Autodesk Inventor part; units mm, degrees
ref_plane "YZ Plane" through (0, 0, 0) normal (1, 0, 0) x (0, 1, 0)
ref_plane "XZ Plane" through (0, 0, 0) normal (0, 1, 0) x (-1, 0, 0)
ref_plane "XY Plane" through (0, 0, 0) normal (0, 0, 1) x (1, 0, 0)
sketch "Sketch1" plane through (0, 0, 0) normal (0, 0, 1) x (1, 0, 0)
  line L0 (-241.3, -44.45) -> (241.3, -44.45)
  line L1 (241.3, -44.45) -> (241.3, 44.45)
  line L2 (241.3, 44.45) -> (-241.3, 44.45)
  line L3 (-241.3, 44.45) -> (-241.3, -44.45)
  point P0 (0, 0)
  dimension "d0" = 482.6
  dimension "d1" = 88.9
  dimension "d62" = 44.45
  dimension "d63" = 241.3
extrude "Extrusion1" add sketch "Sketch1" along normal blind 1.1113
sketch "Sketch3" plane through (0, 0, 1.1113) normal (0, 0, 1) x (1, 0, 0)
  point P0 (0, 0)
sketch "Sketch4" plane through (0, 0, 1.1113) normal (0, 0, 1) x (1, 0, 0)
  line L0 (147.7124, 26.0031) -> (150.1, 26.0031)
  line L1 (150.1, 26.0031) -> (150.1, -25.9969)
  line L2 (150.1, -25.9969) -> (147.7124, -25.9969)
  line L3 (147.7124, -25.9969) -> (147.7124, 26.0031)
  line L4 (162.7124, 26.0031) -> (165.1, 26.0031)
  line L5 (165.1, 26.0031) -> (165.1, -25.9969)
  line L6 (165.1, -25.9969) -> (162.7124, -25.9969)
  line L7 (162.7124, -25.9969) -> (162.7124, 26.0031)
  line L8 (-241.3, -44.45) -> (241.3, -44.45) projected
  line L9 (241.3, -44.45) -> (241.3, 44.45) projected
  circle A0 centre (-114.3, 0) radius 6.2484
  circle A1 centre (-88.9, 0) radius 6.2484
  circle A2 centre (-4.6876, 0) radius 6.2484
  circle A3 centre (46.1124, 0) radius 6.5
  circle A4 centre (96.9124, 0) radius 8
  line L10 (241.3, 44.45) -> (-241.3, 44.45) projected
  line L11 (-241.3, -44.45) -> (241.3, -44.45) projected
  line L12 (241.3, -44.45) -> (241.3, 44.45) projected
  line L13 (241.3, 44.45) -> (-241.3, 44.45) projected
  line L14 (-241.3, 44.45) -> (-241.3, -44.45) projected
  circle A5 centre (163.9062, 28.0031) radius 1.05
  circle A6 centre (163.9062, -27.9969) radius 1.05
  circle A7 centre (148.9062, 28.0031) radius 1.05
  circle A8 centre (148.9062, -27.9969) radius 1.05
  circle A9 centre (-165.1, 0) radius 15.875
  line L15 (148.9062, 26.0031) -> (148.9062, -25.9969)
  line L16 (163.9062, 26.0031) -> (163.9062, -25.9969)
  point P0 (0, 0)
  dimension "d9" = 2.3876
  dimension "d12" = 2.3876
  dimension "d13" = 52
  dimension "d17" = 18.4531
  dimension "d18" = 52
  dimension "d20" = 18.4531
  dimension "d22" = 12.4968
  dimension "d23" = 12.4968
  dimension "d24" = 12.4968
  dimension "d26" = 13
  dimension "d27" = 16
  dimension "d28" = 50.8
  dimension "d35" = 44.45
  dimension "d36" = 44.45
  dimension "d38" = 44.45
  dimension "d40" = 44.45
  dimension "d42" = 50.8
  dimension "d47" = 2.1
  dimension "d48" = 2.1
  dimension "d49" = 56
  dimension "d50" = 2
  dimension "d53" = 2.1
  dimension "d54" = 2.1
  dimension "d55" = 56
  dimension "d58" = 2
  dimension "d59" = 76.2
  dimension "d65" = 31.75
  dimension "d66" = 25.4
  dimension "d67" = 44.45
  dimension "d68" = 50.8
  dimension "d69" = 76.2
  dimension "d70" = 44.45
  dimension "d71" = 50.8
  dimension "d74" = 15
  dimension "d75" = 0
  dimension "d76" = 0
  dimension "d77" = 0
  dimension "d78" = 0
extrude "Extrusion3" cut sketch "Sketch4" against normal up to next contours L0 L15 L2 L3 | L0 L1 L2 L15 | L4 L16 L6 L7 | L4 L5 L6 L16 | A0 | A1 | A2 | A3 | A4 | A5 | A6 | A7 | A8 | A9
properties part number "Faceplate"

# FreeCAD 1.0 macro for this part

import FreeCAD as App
import Part
import Sketcher

V = App.Vector
Q = App.Units.Quantity

doc = App.newDocument("Part")
params = doc.addObject("Spreadsheet::Sheet", "Params")
for row, (alias, value) in enumerate([
    ("sketch1_width", "19 in"),
    ("sketch1_height", "3.5 in"),
    ("pad1_length", "1.1113 mm"),
    ("sketch2_diameter", "1.25 in"),
    ("sketch2_diameter2", "0.492 in"),
    ("sketch2_width", "0.094 in"),
], start=1):
    params.set(f"A{row}", alias)
    params.set(f"B{row}", "=" + value)
    params.setAlias(f"B{row}", alias)

body = doc.addObject("PartDesign::Body", "Body")

# Sketch on XY plane
sketch1 = doc.addObject("Sketcher::SketchObject", "Sketch")
body.addObject(sketch1)
sketch1.AttachmentSupport = (doc.XY_Plane, [""])
sketch1.MapMode = "FlatFace"
sketch1.addGeometry([
    Part.LineSegment(V(-241.3, 44.45, 0), V(-241.3, -44.45, 0)),
    Part.LineSegment(V(-241.3, -44.45, 0), V(241.3, -44.45, 0)),
    Part.LineSegment(V(241.3, -44.45, 0), V(241.3, 44.45, 0)),
    Part.LineSegment(V(241.3, 44.45, 0), V(-241.3, 44.45, 0)),
], False)
sketch1.addConstraint([
    Sketcher.Constraint("Coincident", 0, 2, 1, 1),
    Sketcher.Constraint("Coincident", 1, 2, 2, 1),
    Sketcher.Constraint("Coincident", 2, 2, 3, 1),
    Sketcher.Constraint("Coincident", 3, 2, 0, 1),
    Sketcher.Constraint("Vertical", 0),
    Sketcher.Constraint("Horizontal", 1),
    Sketcher.Constraint("Vertical", 2),
    Sketcher.Constraint("Horizontal", 3),
    Sketcher.Constraint("Symmetric", 0, 2, 2, 2, -1, 1),
    Sketcher.Constraint("DistanceX", 1, 1, 1, 2, Q("19 in")),
    Sketcher.Constraint("DistanceY", 0, 2, 0, 1, Q("3.5 in")),
])
sketch1.setExpression("Constraints[9]", "Params.sketch1_width")
sketch1.setExpression("Constraints[10]", "Params.sketch1_height")
pad1 = doc.addObject("PartDesign::Pad", "Pad")
body.addObject(pad1)
pad1.Profile = sketch1
pad1.setExpression("Length", "Params.pad1_length")

# Sketch on XY plane
sketch2 = doc.addObject("Sketcher::SketchObject", "Sketch001")
body.addObject(sketch2)
sketch2.AttachmentSupport = (doc.XY_Plane, [""])
sketch2.MapMode = "FlatFace"
sketch2.AttachmentOffset = App.Placement(V(0, 0, 1.1113), App.Rotation())
sketch2.addGeometry([
    Part.LineSegment(V(147.7124, 26.0031, 0), V(147.7124, -25.9969, 0)),  # 0
    Part.LineSegment(V(147.7124, -25.9969, 0), V(150.1, -25.9969, 0)),  # 1
    Part.LineSegment(V(150.1, -25.9969, 0), V(150.1, 26.0031, 0)),  # 2
    Part.LineSegment(V(150.1, 26.0031, 0), V(147.7124, 26.0031, 0)),  # 3
    Part.LineSegment(V(162.7124, 26.0031, 0), V(162.7124, -25.9969, 0)),  # 4
    Part.LineSegment(V(162.7124, -25.9969, 0), V(165.1, -25.9969, 0)),  # 5
    Part.LineSegment(V(165.1, -25.9969, 0), V(165.1, 26.0031, 0)),  # 6
    Part.LineSegment(V(165.1, 26.0031, 0), V(162.7124, 26.0031, 0)),  # 7
    Part.Circle(V(-114.3, 0, 0), V(0, 0, 1), 6.2484),  # 8
    Part.Circle(V(-88.9, 0, 0), V(0, 0, 1), 6.2484),  # 9
    Part.Circle(V(-4.6876, 0, 0), V(0, 0, 1), 6.2484),  # 10
    Part.Circle(V(46.1124, 0, 0), V(0, 0, 1), 6.5),  # 11
    Part.Circle(V(96.9124, 0, 0), V(0, 0, 1), 8),  # 12
    Part.Circle(V(163.9062, 28.0031, 0), V(0, 0, 1), 1.05),  # 13
    Part.Circle(V(163.9062, -27.9969, 0), V(0, 0, 1), 1.05),  # 14
    Part.Circle(V(148.9062, 28.0031, 0), V(0, 0, 1), 1.05),  # 15
    Part.Circle(V(148.9062, -27.9969, 0), V(0, 0, 1), 1.05),  # 16
    Part.Circle(V(-165.1, 0, 0), V(0, 0, 1), 15.875),  # 17
], False)
sketch2.addConstraint([
    Sketcher.Constraint("Coincident", 0, 2, 1, 1),
    Sketcher.Constraint("Coincident", 1, 2, 2, 1),
    Sketcher.Constraint("Coincident", 2, 2, 3, 1),
    Sketcher.Constraint("Coincident", 3, 2, 0, 1),
    Sketcher.Constraint("Coincident", 4, 2, 5, 1),
    Sketcher.Constraint("Coincident", 5, 2, 6, 1),
    Sketcher.Constraint("Coincident", 6, 2, 7, 1),
    Sketcher.Constraint("Coincident", 7, 2, 4, 1),
    Sketcher.Constraint("Vertical", 0),
    Sketcher.Constraint("Horizontal", 1),
    Sketcher.Constraint("Vertical", 2),
    Sketcher.Constraint("Horizontal", 3),
    Sketcher.Constraint("Vertical", 4),
    Sketcher.Constraint("Horizontal", 5),
    Sketcher.Constraint("Vertical", 6),
    Sketcher.Constraint("Horizontal", 7),
    Sketcher.Constraint("Equal", 8, 9),
    Sketcher.Constraint("Equal", 9, 10),
    Sketcher.Constraint("Equal", 13, 14),
    Sketcher.Constraint("Equal", 14, 15),
    Sketcher.Constraint("Equal", 15, 16),
    Sketcher.Constraint("PointOnObject", 8, 3, -1),
    Sketcher.Constraint("PointOnObject", 9, 3, -1),
    Sketcher.Constraint("PointOnObject", 10, 3, -1),
    Sketcher.Constraint("PointOnObject", 11, 3, -1),
    Sketcher.Constraint("PointOnObject", 12, 3, -1),
    Sketcher.Constraint("PointOnObject", 17, 3, -1),
    Sketcher.Constraint("Horizontal", 13, 3, 15, 3),
    Sketcher.Constraint("Horizontal", 14, 3, 16, 3),
    Sketcher.Constraint("Horizontal", 1, 2, 4, 2),
    Sketcher.Constraint("Horizontal", 3, 2, 6, 2),
    Sketcher.Constraint("Vertical", 13, 3, 14, 3),
    Sketcher.Constraint("Vertical", 15, 3, 16, 3),
    Sketcher.Constraint("Equal", 3, 5),
    Sketcher.Constraint("Diameter", 17, Q("1.25 in")),
    Sketcher.Constraint("Diameter", 8, Q("0.492 in")),
    Sketcher.Constraint("DistanceX", 8, 3, 9, 3, Q("1 in")),
    Sketcher.Constraint("DistanceX", 10, 3, 11, 3, Q("2 in")),
    Sketcher.Constraint("DistanceX", 11, 3, 12, 3, Q("2 in")),
    Sketcher.Constraint("DistanceX", 17, 3, 8, 3, Q("2 in")),
    Sketcher.Constraint("DistanceX", 12, 3, 0, 2, Q("2 in")),
    Sketcher.Constraint("Diameter", 11, Q("0.5118 in")),
    Sketcher.Constraint("Diameter", 12, Q("16 mm")),
    Sketcher.Constraint("Diameter", 13, Q("2.1 mm")),
    Sketcher.Constraint("DistanceX", 1, 1, 1, 2, Q("0.094 in")),
    Sketcher.Constraint("DistanceY", 0, 2, 0, 1, Q("52 mm")),
    Sketcher.Constraint("DistanceX", 8, 3, -1, 1, Q("4.5 in")),
    Sketcher.Constraint("DistanceX", -1, 1, 5, 2, Q("6.5 in")),
    Sketcher.Constraint("DistanceY", 14, 3, 13, 3, Q("56 mm")),
    Sketcher.Constraint("DistanceX", 15, 3, 13, 3, Q("15 mm")),
    Sketcher.Constraint("DistanceY", 16, 3, 0, 2, Q("2 mm")),
    Sketcher.Constraint("DistanceX", 0, 2, 4, 2, Q("15 mm")),
    Sketcher.Constraint("DistanceX", -1, 1, 13, 3, Q("6.453 in")),
    Sketcher.Constraint("DistanceY", 0, 2, -1, 1, Q("1.0235 in")),
])
sketch2.setExpression("Constraints[34]", "Params.sketch2_diameter")
sketch2.setExpression("Constraints[35]", "Params.sketch2_diameter2")
sketch2.setExpression("Constraints[44]", "Params.sketch2_width")
pocket1 = doc.addObject("PartDesign::Pocket", "Pocket")
body.addObject(pocket1)
pocket1.Profile = sketch2
pocket1.Type = "UpToFirst"

doc.recompute()
